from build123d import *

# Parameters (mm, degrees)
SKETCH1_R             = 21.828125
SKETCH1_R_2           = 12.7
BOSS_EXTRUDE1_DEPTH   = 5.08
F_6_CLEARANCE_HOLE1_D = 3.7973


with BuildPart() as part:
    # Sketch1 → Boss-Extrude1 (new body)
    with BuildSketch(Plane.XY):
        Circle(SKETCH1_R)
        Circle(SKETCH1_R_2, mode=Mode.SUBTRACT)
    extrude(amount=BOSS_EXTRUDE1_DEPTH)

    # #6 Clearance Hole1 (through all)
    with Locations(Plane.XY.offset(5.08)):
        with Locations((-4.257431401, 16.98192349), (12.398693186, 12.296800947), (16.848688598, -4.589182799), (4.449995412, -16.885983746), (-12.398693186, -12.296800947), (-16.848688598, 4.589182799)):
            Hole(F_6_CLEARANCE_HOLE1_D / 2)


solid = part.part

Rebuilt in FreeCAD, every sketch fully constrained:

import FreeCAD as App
import Part
import Sketcher
from FreeCAD import Vector
Q = App.Units.Quantity

doc = App.newDocument("Part")
body = doc.addObject("PartDesign::Body", "Body")

# Sketch on XY plane
sketch1 = body.newObject("Sketcher::SketchObject", "Sketch")
sketch1.AttachmentSupport = (doc.getObject("XY_Plane"), [""])
sketch1.MapMode = "FlatFace"
sketch1.addGeometry(Part.Circle(Vector(0, 0, 0), Vector(0, 0, 1), 22), False)
sketch1.addGeometry(Part.Circle(Vector(0, 0, 0), Vector(0, 0, 1), 13), False)
sketch1.addConstraint(Sketcher.Constraint("Coincident", 0, 3, -1, 1))
sketch1.addConstraint(Sketcher.Constraint("Coincident", 1, 3, -1, 1))
sketch1.addConstraint(Sketcher.Constraint("Diameter", 1, Q("1 in")))
sketch1.addConstraint(Sketcher.Constraint("Diameter", 0, Q("1.71875 in")))
pad1 = body.newObject("PartDesign::Pad", "Pad")
pad1.Profile = sketch1
pad1.Length = Q("0.2 in")

# Sketch on XY plane
sketch2 = body.newObject("Sketcher::SketchObject", "Sketch001")
sketch2.AttachmentSupport = (doc.getObject("XY_Plane"), [""])
sketch2.MapMode = "FlatFace"
sketch2.AttachmentOffset = App.Placement(Vector(0, 0, 0.2 * 25.4), App.Rotation())
sketch2.addGeometry(Part.Circle(Vector(-4.3, 17, 0), Vector(0, 0, 1), 1.9), False)
sketch2.addGeometry(Part.Circle(Vector(12.4, 12.3, 0), Vector(0, 0, 1), 1.9), False)
sketch2.addGeometry(Part.Circle(Vector(16.8, -4.6, 0), Vector(0, 0, 1), 1.9), False)
sketch2.addGeometry(Part.Circle(Vector(4.4, -16.9, 0), Vector(0, 0, 1), 1.9), False)
sketch2.addGeometry(Part.Circle(Vector(-12.4, -12.3, 0), Vector(0, 0, 1), 1.9), False)
sketch2.addGeometry(Part.Circle(Vector(-16.8, 4.6, 0), Vector(0, 0, 1), 1.9), False)
sketch2.addConstraint(Sketcher.Constraint("Equal", 0, 1))
sketch2.addConstraint(Sketcher.Constraint("Equal", 1, 2))
sketch2.addConstraint(Sketcher.Constraint("Equal", 2, 3))
sketch2.addConstraint(Sketcher.Constraint("Equal", 3, 4))
sketch2.addConstraint(Sketcher.Constraint("Equal", 4, 5))
sketch2.addConstraint(Sketcher.Constraint("Symmetric", 1, 3, 4, 3, -1, 1))
sketch2.addConstraint(Sketcher.Constraint("Symmetric", 2, 3, 5, 3, -1, 1))
sketch2.addConstraint(Sketcher.Constraint("Diameter", 0, Q("0.1495 in")))
sketch2.addConstraint(Sketcher.Constraint("DistanceY", -1, 1, 1, 3, Q("12.296801 mm")))
sketch2.addConstraint(Sketcher.Constraint("DistanceY", 3, 3, 2, 3, Q("12.296801 mm")))
sketch2.addConstraint(Sketcher.Constraint("DistanceX", 0, 3, -1, 1, Q("4.257431 mm")))
sketch2.addConstraint(Sketcher.Constraint("DistanceX", -1, 1, 2, 3, Q("16.848689 mm")))
sketch2.addConstraint(Sketcher.Constraint("DistanceX", 4, 3, 3, 3, Q("16.848689 mm")))
sketch2.addConstraint(Sketcher.Constraint("DistanceX", 4, 3, 2, 3, Q("29.247382 mm")))
sketch2.addConstraint(Sketcher.Constraint("DistanceY", 4, 3, 2, 3, Q("7.707618 mm")))
sketch2.addConstraint(Sketcher.Constraint("DistanceY", 5, 3, 0, 3, Q("12.392741 mm")))
doc.recompute()
hole = body.newObject("PartDesign::Hole", "Hole")
hole.Profile = sketch2
hole.ThreadType = "None"
hole.Diameter = Q("0.1495 in")
hole.DepthType = "ThroughAll"

doc.recompute()
